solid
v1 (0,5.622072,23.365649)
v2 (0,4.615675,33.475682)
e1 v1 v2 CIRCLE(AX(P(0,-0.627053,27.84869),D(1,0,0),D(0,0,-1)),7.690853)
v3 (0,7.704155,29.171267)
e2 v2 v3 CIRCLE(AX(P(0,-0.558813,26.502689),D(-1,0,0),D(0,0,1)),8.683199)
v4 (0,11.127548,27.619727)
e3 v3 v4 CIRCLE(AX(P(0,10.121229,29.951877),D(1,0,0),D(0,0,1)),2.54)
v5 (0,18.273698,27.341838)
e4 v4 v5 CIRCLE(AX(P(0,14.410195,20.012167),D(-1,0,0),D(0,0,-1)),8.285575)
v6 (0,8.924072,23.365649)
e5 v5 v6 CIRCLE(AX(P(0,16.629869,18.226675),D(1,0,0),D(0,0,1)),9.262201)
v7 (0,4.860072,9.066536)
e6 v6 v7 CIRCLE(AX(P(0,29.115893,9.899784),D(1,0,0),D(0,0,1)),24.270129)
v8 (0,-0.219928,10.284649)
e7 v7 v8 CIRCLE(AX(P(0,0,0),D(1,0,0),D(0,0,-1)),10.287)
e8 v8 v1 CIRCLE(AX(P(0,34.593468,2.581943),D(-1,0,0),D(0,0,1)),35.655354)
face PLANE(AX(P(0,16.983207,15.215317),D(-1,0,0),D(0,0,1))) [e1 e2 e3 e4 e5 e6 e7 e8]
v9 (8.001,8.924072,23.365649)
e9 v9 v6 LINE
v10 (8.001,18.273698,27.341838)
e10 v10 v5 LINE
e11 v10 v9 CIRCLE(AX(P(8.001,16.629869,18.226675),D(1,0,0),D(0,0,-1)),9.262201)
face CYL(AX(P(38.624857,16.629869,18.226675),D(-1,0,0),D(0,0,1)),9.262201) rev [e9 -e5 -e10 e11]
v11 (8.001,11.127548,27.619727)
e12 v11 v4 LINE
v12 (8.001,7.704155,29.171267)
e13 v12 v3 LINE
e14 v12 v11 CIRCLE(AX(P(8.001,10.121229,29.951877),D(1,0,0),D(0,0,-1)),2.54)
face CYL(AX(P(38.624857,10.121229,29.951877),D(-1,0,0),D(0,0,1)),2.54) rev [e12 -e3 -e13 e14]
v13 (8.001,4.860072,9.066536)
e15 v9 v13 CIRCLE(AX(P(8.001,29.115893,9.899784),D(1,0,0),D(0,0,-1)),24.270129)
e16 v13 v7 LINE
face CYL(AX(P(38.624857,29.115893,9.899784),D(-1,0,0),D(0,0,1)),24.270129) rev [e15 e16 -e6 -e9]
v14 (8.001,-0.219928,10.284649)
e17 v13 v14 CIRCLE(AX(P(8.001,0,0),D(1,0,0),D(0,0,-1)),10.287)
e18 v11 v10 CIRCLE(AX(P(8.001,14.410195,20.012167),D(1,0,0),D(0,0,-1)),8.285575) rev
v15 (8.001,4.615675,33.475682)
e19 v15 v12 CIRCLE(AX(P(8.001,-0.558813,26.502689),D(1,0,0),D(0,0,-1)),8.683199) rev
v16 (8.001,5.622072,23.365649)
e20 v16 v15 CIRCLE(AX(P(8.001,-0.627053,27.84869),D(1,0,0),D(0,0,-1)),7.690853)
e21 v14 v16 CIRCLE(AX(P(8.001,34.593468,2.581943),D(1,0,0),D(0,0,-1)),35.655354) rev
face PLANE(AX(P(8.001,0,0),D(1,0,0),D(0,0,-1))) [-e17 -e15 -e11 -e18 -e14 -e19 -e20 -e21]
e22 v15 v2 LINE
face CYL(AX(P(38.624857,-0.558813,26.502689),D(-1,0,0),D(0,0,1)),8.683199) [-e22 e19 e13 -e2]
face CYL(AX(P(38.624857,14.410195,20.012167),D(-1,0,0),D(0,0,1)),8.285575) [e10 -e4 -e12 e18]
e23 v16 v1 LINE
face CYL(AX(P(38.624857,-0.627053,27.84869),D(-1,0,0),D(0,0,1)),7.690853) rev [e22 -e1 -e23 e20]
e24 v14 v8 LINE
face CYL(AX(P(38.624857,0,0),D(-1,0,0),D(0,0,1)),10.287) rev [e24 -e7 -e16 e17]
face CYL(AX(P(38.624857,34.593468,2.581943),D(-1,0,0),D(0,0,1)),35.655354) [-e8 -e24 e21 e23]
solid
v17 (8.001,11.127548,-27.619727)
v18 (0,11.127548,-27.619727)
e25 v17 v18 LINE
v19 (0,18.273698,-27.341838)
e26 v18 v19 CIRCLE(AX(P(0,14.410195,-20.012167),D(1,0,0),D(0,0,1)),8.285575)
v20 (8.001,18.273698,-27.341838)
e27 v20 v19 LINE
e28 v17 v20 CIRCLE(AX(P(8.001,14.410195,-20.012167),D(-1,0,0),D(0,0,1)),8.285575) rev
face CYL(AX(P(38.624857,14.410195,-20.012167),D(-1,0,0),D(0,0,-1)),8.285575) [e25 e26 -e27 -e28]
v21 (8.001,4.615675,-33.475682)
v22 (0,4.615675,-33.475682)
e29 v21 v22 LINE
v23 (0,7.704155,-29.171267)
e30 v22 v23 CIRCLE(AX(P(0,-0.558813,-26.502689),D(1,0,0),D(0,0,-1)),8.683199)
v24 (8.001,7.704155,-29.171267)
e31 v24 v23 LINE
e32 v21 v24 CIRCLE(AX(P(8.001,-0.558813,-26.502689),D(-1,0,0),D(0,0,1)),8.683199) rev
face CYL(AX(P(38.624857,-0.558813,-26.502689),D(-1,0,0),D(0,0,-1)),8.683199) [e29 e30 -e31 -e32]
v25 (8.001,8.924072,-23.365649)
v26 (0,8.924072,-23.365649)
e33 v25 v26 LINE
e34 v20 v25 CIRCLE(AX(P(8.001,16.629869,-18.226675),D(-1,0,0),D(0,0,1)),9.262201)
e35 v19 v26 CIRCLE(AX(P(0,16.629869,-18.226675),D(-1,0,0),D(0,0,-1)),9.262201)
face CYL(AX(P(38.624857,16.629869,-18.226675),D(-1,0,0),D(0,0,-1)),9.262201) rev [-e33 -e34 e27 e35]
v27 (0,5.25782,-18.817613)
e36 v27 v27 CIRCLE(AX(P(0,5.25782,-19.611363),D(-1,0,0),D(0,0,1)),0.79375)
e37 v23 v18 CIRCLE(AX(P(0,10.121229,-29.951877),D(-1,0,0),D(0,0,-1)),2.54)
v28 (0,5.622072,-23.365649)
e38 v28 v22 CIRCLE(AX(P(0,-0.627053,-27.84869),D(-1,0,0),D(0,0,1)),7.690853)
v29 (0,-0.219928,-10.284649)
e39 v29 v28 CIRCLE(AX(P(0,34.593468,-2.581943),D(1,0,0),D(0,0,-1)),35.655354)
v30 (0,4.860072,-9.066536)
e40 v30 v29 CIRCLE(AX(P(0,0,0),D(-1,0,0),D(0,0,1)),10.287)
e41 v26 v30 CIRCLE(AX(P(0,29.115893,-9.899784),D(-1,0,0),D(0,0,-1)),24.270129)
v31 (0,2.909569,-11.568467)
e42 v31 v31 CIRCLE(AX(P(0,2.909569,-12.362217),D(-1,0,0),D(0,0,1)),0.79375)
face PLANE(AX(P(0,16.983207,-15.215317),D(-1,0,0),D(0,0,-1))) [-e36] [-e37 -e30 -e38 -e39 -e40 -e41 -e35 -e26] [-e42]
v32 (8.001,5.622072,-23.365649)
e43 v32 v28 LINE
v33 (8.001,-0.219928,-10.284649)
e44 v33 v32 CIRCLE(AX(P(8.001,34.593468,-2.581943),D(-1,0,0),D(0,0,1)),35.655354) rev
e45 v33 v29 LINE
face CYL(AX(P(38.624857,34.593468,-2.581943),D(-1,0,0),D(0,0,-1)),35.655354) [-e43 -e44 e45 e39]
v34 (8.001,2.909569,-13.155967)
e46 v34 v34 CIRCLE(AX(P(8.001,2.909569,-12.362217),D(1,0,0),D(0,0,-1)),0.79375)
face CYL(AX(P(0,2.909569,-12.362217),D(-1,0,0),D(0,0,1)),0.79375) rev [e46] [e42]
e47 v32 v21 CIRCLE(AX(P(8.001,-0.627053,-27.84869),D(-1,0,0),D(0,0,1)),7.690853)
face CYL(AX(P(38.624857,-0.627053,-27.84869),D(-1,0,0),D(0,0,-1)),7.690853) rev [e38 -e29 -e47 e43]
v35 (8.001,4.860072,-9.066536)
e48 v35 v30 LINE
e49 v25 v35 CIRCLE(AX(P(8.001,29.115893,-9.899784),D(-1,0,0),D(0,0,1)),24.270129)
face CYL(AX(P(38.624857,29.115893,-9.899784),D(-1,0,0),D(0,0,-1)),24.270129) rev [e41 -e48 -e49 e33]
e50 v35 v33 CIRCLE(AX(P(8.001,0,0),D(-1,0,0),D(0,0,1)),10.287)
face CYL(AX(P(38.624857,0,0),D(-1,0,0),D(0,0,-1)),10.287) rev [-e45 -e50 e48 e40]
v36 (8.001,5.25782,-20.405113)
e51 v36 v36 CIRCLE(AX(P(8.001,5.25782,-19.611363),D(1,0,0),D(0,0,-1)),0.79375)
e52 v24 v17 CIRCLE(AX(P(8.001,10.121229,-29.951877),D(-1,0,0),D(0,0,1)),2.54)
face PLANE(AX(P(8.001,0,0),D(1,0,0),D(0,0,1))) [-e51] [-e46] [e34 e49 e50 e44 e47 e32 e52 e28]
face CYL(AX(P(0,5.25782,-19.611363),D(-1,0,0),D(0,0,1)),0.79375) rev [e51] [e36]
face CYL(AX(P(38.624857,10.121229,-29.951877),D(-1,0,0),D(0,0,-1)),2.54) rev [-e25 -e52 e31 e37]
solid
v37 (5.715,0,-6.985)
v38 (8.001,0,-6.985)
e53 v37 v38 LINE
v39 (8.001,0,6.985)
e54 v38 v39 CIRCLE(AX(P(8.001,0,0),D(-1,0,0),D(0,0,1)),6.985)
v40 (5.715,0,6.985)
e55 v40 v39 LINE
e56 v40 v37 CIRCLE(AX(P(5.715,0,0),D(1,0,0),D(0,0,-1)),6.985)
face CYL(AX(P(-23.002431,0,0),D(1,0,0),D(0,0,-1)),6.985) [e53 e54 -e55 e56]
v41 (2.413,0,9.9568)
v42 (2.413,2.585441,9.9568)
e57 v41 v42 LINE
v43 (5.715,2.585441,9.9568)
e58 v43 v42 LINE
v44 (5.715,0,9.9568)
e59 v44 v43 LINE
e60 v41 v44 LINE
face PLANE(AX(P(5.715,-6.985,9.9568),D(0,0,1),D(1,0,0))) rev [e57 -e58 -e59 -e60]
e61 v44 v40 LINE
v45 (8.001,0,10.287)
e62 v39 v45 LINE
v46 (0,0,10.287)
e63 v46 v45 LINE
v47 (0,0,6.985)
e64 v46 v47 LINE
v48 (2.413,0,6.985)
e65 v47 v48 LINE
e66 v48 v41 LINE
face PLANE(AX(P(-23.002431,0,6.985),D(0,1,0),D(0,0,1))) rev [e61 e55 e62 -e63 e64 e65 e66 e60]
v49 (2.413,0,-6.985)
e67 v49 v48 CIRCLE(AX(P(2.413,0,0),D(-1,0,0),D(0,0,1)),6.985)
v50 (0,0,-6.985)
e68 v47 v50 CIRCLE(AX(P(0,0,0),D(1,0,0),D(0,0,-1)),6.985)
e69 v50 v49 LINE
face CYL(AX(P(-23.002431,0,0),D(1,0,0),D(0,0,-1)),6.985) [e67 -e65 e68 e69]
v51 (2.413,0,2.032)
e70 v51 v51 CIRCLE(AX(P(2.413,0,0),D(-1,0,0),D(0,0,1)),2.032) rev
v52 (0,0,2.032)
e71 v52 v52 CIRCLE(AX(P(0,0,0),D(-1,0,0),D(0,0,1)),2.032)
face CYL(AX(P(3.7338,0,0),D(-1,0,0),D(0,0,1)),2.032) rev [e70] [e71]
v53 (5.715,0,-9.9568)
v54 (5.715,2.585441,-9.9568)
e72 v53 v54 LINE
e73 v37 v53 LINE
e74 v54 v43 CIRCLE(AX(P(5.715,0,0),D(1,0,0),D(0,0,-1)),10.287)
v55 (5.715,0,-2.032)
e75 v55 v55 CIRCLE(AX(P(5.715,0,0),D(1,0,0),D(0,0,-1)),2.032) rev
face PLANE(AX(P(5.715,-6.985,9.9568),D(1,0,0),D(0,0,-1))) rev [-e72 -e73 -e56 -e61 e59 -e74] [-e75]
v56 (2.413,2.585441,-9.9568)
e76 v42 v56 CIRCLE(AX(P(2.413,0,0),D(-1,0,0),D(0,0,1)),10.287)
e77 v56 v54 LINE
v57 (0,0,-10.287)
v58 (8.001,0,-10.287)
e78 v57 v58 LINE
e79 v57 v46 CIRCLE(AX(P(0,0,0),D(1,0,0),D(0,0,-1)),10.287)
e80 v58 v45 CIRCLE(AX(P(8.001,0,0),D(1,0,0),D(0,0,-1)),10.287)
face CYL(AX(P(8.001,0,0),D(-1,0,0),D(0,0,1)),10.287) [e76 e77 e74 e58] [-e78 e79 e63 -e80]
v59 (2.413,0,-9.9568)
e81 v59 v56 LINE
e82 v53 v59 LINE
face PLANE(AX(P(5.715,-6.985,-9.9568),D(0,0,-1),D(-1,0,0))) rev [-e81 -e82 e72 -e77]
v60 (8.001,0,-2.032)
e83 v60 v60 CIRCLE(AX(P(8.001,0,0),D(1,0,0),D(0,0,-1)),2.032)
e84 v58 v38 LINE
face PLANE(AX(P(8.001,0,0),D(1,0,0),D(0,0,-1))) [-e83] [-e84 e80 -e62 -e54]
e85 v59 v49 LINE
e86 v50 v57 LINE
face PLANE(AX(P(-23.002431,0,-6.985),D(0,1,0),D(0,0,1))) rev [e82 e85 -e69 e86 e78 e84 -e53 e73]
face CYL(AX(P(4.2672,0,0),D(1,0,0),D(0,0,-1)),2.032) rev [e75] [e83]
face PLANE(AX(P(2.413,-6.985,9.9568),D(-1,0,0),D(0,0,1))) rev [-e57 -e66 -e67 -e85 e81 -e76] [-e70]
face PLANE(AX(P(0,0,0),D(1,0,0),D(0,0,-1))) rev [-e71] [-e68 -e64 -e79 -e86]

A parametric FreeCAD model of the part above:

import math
import FreeCAD as App
import Part
import Sketcher

V = App.Vector
Q = App.Units.Quantity


def add_polygon(sketch, points):
    """Adds a closed chain of lines whose ends are joined by coincident constraints."""
    first, n = sketch.GeometryCount, len(points)
    for a, b in zip(points, points[1:] + points[:1]):
        sketch.addGeometry(Part.LineSegment(App.Vector(*a, 0), App.Vector(*b, 0)), False)
    for i in range(n):
        sketch.addConstraint(Sketcher.Constraint("Coincident", first + i, 2, first + (i + 1) % n, 1))

doc = App.newDocument("Part")
body = doc.addObject("PartDesign::Body", "Body")

# Sketch on YZ plane
sketch1 = doc.addObject("Sketcher::SketchObject", "Sketch")
body.addObject(sketch1)
sketch1.AttachmentSupport = (doc.YZ_Plane, [""])
sketch1.MapMode = "FlatFace"
sketch1.addGeometry(Part.Circle(V(0, 0, 0), V(0, 0, 1), 10.287), False)
sketch1.addConstraint([
    Sketcher.Constraint("Coincident", 0, 3, -1, 1),
    Sketcher.Constraint("Diameter", 0, Q("0.81 in")),
])
pad1 = doc.addObject("PartDesign::Pad", "Pad")
body.addObject(pad1)
pad1.Profile = sketch1
pad1.Length = Q("0.315 in")

# Sketch on YZ plane
sketch2 = doc.addObject("Sketcher::SketchObject", "Sketch001")
body.addObject(sketch2)
sketch2.AttachmentSupport = (doc.YZ_Plane, [""])
sketch2.MapMode = "FlatFace"
sketch2.AttachmentOffset = App.Placement(V(0, 0, 0.315 * 25.4), App.Rotation())
sketch2.addGeometry(Part.Circle(V(0, 0, 0), V(0, 0, 1), 2.032), False)
sketch2.addConstraint([
    Sketcher.Constraint("Coincident", 0, 3, -1, 1),
    Sketcher.Constraint("Diameter", 0, Q("0.16 in")),
])
pocket1 = doc.addObject("PartDesign::Pocket", "Pocket")
body.addObject(pocket1)
pocket1.Profile = sketch2
pocket1.Length = Q("0.147 in")

# Sketch on YZ plane
sketch3 = doc.addObject("Sketcher::SketchObject", "Sketch002")
body.addObject(sketch3)
sketch3.AttachmentSupport = (doc.YZ_Plane, [""])
sketch3.MapMode = "FlatFace"
sketch3.AttachmentOffset = App.Placement(V(0, 0, 0.147 * 25.4), App.Rotation())
sketch3.addGeometry(Part.Circle(V(0, 0, 0), V(0, 0, 1), 2.032), False)
sketch3.addConstraint([
    Sketcher.Constraint("Coincident", 0, 3, -1, 1),
    Sketcher.Constraint("Diameter", 0, Q("0.16 in")),
])
pocket2 = doc.addObject("PartDesign::Pocket", "Pocket001")
body.addObject(pocket2)
pocket2.Profile = sketch3
pocket2.Length = Q("0.147 in")

# Sketch on YZ plane
sketch4 = doc.addObject("Sketcher::SketchObject", "Sketch003")
body.addObject(sketch4)
sketch4.AttachmentSupport = (doc.YZ_Plane, [""])
sketch4.MapMode = "FlatFace"
sketch4.addGeometry([
    Part.LineSegment(V(0, 6.985, 0), V(0, 10.287, 0)),
    Part.ArcOfCircle(Part.Circle(V(0, 0, 0), V(0, 0, 1), 10.287), math.radians(90), math.radians(270)),
    Part.LineSegment(V(0, -10.287, 0), V(0, -6.985, 0)),
    Part.ArcOfCircle(Part.Circle(V(0, 0, 0), V(0, 0, 1), 6.985), math.radians(90), math.radians(270)),
], False)
sketch4.addConstraint([
    Sketcher.Constraint("Coincident", 0, 2, 1, 1),
    Sketcher.Constraint("Coincident", 1, 2, 2, 1),
    Sketcher.Constraint("Coincident", 2, 2, 3, 2),
    Sketcher.Constraint("Coincident", 3, 1, 0, 1),
    Sketcher.Constraint("Vertical", 0),
    Sketcher.Constraint("Vertical", 2),
    Sketcher.Constraint("Coincident", 1, 3, -1, 1),
    Sketcher.Constraint("Coincident", 3, 3, -1, 1),
    Sketcher.Constraint("PointOnObject", 0, 2, -2),
    Sketcher.Constraint("PointOnObject", 1, 2, -2),
    Sketcher.Constraint("Radius", 1, Q("0.405 in")),
    Sketcher.Constraint("Radius", 3, Q("0.275 in")),
])
pocket3 = doc.addObject("PartDesign::Pocket", "Pocket002")
body.addObject(pocket3)
pocket3.Profile = sketch4
pocket3.Length = Q("0.315 in")
pocket3.Reversed = True

# Sketch on XZ plane
sketch5 = doc.addObject("Sketcher::SketchObject", "Sketch004")
body.addObject(sketch5)
sketch5.AttachmentSupport = (doc.XZ_Plane, [""])
sketch5.MapMode = "FlatFace"
sketch5.AttachmentOffset = App.Placement(V(0, 0, -0.405 * 25.4), App.Rotation())
add_polygon(sketch5, [(2.413, -9.9568), (2.413, 9.9568), (5.715, 9.9568), (5.715, -9.9568)])  # lines 0-3
sketch5.addConstraint([
    Sketcher.Constraint("Vertical", 0),
    Sketcher.Constraint("Horizontal", 1),
    Sketcher.Constraint("Vertical", 2),
    Sketcher.Constraint("Horizontal", 3),
    Sketcher.Constraint("DistanceX", 1, 1, 1, 2, Q("0.13 in")),
    Sketcher.Constraint("DistanceY", 0, 1, 0, 2, Q("0.784 in")),
    Sketcher.Constraint("DistanceX", -1, 1, 0, 2, Q("0.095 in")),
    Sketcher.Constraint("DistanceY", -1, 1, 0, 2, Q("0.392 in")),
])
pocket4 = doc.addObject("PartDesign::Pocket", "Pocket003")
body.addObject(pocket4)
pocket4.Profile = sketch5
pocket4.Type = "ThroughAll"
pocket4.Reversed = True
body2 = doc.addObject("PartDesign::Body", "Body001")

# Sketch on YZ plane
sketch6 = doc.addObject("Sketcher::SketchObject", "Sketch005")
body2.addObject(sketch6)
sketch6.AttachmentSupport = (doc.getObject("YZ_Plane001"), [""])
sketch6.MapMode = "FlatFace"
sketch6.addGeometry([
    Part.ArcOfCircle(Part.Circle(V(0, 0, 0), V(0, 0, 1), 10.287), math.radians(61.806686), math.radians(91.225033)),  # 0
    Part.ArcOfCircle(Part.Circle(V(34.593468, 2.581943, 0), V(0, 0, 1), 35.655353), math.radians(144.344831), math.radians(167.523906)),  # 1
    Part.ArcOfCircle(Part.Circle(V(-0.627053, 27.84869, 0), V(0, 0, 1), 7.690853), math.radians(-35.655169), math.radians(47.024662)),  # 2
    Part.ArcOfCircle(Part.Circle(V(-0.558813, 26.502689, 0), V(0, 0, 1), 8.683199), math.radians(17.898194), math.radians(53.421794)),  # 3
    Part.ArcOfCircle(Part.Circle(V(10.121229, 29.951877, 0), V(0, 0, 1), 2.54), math.radians(-162.101806), math.radians(-66.659898)),  # 4
    Part.ArcOfCircle(Part.Circle(V(14.410195, 20.012167, 0), V(0, 0, 1), 8.285575), math.radians(62.206078), math.radians(113.340102)),  # 5
    Part.ArcOfCircle(Part.Circle(V(16.629869, 18.226675, 0), V(0, 0, 1), 9.262201), math.radians(79.777155), math.radians(146.300797)),  # 6
    Part.ArcOfCircle(Part.Circle(V(29.115893, 9.899784, 0), V(0, 0, 1), 24.270129), math.radians(146.300797), math.radians(181.967479)),  # 7
], False)
sketch6.addConstraint([
    Sketcher.Constraint("Coincident", 0, 2, 1, 2),
    Sketcher.Constraint("Tangent", 1, 1, 2, 1),
    Sketcher.Constraint("Coincident", 2, 2, 3, 2),
    Sketcher.Constraint("Tangent", 3, 1, 4, 1),
    Sketcher.Constraint("Tangent", 4, 2, 5, 2),
    Sketcher.Constraint("Coincident", 5, 1, 6, 1),
    Sketcher.Constraint("Tangent", 6, 2, 7, 1),
    Sketcher.Constraint("Coincident", 7, 2, 0, 1),
    Sketcher.Constraint("Coincident", 0, 3, -1, 1),
    Sketcher.Constraint("Horizontal", 1, 1, 6, 2),
    Sketcher.Constraint("Radius", 4, Q("0.1 in")),
    Sketcher.Constraint("Radius", 0, Q("0.405 in")),
    Sketcher.Constraint("DistanceX", 0, 2, 7, 2, Q("0.2 in")),
    Sketcher.Constraint("Radius", 3, Q("8.683199 mm")),
    Sketcher.Constraint("Radius", 6, Q("9.262201 mm")),
    Sketcher.Constraint("DistanceX", 1, 1, 6, 2, Q("0.13 in")),
    Sketcher.Constraint("DistanceX", 7, 2, 1, 1, Q("0.03 in")),
    Sketcher.Constraint("Radius", 7, Q("24.270129 mm")),
    Sketcher.Constraint("Radius", 1, Q("35.655353 mm")),
    Sketcher.Constraint("Radius", 2, Q("7.690853 mm")),
    Sketcher.Constraint("Radius", 5, Q("8.285575 mm")),
    Sketcher.Constraint("DistanceX", -1, 1, 5, 1, Q("18.273698 mm")),
    Sketcher.Constraint("DistanceY", 3, 3, 2, 3, Q("1.346001 mm")),
    Sketcher.Constraint("DistanceY", 6, 3, 4, 3, Q("11.725202 mm")),
    Sketcher.Constraint("DistanceX", 6, 3, 1, 3, Q("17.963599 mm")),
    Sketcher.Constraint("DistanceX", 5, 3, 7, 3, Q("14.705698 mm")),
    Sketcher.Constraint("DistanceX", -1, 1, 4, 3, Q("10.121229 mm")),
])
pad2 = doc.addObject("PartDesign::Pad", "Pad001")
body2.addObject(pad2)
pad2.Profile = sketch6
pad2.Length = Q("0.315 in")
body3 = doc.addObject("PartDesign::Body", "Body002")
doc.recompute()

mirroring = doc.addObject("Part::Mirroring", "Mirroring")
mirroring.Source = body2
mirroring.Base = V(0, 0, 0)
mirroring.Normal = V(0, 0, 1)
body3.BaseFeature = mirroring
doc.recompute()

# Sketch on XZ plane
sketch7 = doc.addObject("Sketcher::SketchObject", "Sketch006")
body3.addObject(sketch7)
sketch7.AttachmentSupport = (doc.getObject("XZ_Plane002"), [""])
sketch7.MapMode = "FlatFace"
sketch7.AttachmentOffset = App.Placement(V(0, 0, -2.909569), App.Rotation())
add_polygon(sketch7, [(70.580933, -12.362217), (0, -12.362217), (0, -11.568467), (70.104, -11.568467)])  # lines 0-3
sketch7.addGeometry(Part.LineSegment(V(0, -12.362217, 0), V(70.580933, -12.362217, 0)), True)  # axis
sketch7.addConstraint([
    Sketcher.Constraint("Horizontal", 0),
    Sketcher.Constraint("Vertical", 1),
    Sketcher.Constraint("Horizontal", 2),
    Sketcher.Constraint("Horizontal", 4),
    Sketcher.Constraint("Coincident", 4, 1, 0, 2),
    Sketcher.Constraint("PointOnObject", 0, 2, -2),
    Sketcher.Constraint("Equal", 0, 4),
    Sketcher.Constraint("Angle", 3, Q("-59 deg")),
    Sketcher.Constraint("DistanceX", 2, 1, 2, 2, Q("2.76 in")),
    Sketcher.Constraint("DistanceY", 1, 1, 1, 2, Q("0.03125 in")),
    Sketcher.Constraint("DistanceY", 0, 2, -1, 1, Q("12.362217 mm")),
])
groove = doc.addObject("PartDesign::Groove", "Groove")
body3.addObject(groove)
groove.Profile = sketch7
groove.ReferenceAxis = (sketch7, ["Axis0"])
groove.Angle = 360
doc.recompute()

datumline = doc.addObject("PartDesign::Line", "DatumLine")
body3.addObject(datumline)
datumline.Placement = App.Placement(V(0, 0, 0), App.Rotation(V(0, 0, 1), V(0, 0.308169389, -0.951331503)))
linearpattern = doc.addObject("PartDesign::LinearPattern", "LinearPattern")
body3.addObject(linearpattern)
linearpattern.Originals = [groove]
linearpattern.Direction = (datumline, [""])
linearpattern.Mode = "offset"
linearpattern.Offset = Q("0.3 in")
linearpattern.Occurrences = 2
body3.Tip = linearpattern
mirroring.Visibility = False

doc.recompute()
